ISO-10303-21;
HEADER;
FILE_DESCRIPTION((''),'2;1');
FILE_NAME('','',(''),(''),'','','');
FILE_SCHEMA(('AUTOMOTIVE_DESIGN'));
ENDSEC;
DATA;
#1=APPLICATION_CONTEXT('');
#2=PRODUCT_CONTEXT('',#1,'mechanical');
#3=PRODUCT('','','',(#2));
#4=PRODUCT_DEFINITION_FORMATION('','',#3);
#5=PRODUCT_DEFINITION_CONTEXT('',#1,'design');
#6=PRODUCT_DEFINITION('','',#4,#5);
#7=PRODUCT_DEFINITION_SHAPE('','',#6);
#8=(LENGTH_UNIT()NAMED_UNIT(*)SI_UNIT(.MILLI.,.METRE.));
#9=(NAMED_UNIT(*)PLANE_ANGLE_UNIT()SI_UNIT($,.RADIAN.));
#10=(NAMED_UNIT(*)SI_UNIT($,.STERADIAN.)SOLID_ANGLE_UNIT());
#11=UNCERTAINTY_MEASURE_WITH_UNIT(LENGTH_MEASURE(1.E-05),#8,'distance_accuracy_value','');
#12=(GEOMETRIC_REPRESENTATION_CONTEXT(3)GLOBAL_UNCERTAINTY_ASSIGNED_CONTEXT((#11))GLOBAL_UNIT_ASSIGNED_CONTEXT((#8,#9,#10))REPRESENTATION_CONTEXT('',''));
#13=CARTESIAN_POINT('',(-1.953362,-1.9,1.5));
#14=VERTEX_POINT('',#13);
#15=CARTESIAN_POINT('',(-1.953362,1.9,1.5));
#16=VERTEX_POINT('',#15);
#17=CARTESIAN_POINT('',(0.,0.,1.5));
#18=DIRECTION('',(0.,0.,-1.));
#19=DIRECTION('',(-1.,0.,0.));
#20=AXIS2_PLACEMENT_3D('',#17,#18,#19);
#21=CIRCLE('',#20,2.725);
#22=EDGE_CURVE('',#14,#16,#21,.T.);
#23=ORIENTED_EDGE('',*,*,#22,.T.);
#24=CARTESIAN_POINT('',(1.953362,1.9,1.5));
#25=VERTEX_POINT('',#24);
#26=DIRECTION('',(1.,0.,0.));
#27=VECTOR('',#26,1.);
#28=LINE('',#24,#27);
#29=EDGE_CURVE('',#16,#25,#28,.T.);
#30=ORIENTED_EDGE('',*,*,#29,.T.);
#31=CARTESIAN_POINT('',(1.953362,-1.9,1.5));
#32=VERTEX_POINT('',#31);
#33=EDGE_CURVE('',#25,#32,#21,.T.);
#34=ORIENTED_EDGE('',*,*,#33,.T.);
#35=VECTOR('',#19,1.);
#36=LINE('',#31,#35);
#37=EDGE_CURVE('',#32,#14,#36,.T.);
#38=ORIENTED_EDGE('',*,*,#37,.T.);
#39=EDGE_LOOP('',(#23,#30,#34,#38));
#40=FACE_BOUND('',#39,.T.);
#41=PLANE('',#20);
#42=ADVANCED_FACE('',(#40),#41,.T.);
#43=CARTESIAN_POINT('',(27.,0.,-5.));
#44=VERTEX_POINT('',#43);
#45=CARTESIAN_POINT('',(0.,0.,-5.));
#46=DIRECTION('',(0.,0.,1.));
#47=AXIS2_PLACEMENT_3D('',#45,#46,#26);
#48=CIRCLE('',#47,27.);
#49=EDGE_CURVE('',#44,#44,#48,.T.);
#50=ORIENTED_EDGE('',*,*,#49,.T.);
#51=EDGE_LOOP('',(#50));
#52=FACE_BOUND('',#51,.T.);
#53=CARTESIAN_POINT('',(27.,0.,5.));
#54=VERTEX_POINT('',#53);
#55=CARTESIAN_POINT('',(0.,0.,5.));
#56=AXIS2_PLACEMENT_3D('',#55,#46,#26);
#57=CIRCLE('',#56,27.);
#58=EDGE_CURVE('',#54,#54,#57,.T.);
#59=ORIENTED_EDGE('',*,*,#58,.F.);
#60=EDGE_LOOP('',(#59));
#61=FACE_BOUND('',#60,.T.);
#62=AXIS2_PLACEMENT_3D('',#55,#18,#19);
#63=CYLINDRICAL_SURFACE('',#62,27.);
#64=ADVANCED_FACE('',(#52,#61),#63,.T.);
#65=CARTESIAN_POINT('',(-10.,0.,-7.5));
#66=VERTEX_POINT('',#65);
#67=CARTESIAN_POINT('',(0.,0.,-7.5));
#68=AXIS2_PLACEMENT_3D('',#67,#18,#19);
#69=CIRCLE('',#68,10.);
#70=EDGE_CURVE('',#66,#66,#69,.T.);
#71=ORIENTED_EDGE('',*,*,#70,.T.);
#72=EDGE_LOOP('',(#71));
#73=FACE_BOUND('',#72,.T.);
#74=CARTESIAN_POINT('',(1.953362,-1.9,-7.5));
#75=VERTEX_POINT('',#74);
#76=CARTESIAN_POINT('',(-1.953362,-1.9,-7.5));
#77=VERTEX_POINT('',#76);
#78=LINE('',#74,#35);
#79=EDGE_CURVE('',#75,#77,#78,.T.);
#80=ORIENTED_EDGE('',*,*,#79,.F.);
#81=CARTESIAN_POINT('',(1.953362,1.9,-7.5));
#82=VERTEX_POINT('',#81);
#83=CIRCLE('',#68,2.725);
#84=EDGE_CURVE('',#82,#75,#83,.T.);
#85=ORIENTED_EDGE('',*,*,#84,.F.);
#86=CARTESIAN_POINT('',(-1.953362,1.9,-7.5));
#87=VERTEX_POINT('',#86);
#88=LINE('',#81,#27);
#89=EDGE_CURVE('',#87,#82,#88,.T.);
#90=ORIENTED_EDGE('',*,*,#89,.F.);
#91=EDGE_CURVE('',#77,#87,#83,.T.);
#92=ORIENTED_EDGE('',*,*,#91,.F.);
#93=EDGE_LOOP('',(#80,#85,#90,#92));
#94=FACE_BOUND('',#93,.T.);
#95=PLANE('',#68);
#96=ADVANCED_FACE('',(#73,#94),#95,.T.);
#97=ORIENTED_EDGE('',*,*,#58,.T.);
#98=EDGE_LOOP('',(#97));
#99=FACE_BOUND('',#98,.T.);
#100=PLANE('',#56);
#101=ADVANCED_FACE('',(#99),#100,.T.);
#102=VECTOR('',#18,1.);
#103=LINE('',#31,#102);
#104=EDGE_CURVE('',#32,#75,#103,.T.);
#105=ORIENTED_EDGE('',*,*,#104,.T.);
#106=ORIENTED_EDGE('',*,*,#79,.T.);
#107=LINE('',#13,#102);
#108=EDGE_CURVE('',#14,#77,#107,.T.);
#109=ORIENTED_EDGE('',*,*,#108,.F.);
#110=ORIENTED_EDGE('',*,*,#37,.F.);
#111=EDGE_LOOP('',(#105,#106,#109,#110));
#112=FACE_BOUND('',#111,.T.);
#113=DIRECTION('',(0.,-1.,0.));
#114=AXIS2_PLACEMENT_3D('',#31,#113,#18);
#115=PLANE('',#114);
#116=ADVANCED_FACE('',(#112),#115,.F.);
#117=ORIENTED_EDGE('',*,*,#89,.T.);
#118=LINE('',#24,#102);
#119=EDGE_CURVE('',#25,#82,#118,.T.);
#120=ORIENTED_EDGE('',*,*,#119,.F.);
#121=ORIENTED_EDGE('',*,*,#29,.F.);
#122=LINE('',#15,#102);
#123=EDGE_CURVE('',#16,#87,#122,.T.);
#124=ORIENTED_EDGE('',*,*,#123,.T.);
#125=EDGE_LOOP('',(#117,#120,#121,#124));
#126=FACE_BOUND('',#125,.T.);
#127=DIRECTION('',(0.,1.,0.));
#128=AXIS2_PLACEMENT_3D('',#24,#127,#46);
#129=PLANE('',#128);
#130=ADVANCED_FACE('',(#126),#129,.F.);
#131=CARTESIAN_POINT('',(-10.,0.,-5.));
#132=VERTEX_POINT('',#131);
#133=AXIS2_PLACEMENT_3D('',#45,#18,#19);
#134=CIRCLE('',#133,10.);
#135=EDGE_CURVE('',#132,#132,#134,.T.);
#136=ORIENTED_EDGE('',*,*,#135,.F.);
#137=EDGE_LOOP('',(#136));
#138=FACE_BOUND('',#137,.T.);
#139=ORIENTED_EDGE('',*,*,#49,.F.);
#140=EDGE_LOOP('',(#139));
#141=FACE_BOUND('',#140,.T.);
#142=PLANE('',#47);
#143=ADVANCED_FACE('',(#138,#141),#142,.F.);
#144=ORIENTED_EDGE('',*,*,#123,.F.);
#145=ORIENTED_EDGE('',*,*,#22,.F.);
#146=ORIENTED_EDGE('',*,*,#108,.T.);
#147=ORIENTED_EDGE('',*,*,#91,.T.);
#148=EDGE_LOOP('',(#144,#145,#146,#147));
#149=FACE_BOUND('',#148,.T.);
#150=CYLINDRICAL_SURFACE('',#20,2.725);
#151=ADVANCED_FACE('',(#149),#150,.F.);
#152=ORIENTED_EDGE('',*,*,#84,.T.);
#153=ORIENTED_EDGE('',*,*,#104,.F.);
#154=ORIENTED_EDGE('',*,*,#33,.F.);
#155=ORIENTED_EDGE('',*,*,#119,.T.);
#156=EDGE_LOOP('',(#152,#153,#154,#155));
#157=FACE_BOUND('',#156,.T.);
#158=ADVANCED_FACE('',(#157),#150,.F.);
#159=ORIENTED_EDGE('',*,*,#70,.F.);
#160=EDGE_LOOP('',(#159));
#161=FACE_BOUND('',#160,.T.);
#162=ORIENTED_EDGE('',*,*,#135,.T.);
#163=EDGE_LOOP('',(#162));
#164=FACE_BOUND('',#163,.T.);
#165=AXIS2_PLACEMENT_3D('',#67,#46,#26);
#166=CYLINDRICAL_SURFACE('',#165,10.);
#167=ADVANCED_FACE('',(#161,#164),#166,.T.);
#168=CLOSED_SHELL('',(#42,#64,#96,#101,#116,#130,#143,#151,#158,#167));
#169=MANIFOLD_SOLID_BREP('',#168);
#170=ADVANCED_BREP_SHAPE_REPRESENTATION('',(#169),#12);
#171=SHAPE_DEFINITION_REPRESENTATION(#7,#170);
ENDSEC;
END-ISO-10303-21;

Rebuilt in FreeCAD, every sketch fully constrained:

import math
import FreeCAD as App
import Part
import Sketcher

doc = App.newDocument("Part")
body = doc.addObject("PartDesign::Body", "Body")

sketch1 = body.newObject("Sketcher::SketchObject", "Sketch")
sketch1.AttachmentSupport = (doc.getObject("XY_Plane"), [""])
sketch1.MapMode = "FlatFace"
sketch1.addGeometry(Part.Circle(App.Vector(0, 0, 0), App.Vector(0, 0, 1), 27), False)
sketch1.addConstraint([
    Sketcher.Constraint("Coincident", 0, 3, -1, 1),
    Sketcher.Constraint("Diameter", 0, 54.0),
])
pad1 = body.newObject("PartDesign::Pad", "Pad")
pad1.Profile = sketch1
pad1.Length = 10
pad1.Midplane = True

sketch2 = body.newObject("Sketcher::SketchObject", "Sketch001")
sketch2.AttachmentSupport = (doc.getObject("XY_Plane"), [""])
sketch2.MapMode = "FlatFace"
sketch2.AttachmentOffset = App.Placement(App.Vector(0, 0, -5), App.Rotation())
sketch2.addGeometry(Part.Circle(App.Vector(0, 0, 0), App.Vector(0, 0, 1), 10), False)
sketch2.addConstraint([
    Sketcher.Constraint("Coincident", 0, 3, -1, 1),
    Sketcher.Constraint("Diameter", 0, 20.0),
])
pad2 = body.newObject("PartDesign::Pad", "Pad001")
pad2.Profile = sketch2
pad2.Length = 2.5
pad2.Reversed = True

sketch3 = body.newObject("Sketcher::SketchObject", "Sketch002")
sketch3.AttachmentSupport = (doc.getObject("XY_Plane"), [""])
sketch3.MapMode = "FlatFace"
sketch3.AttachmentOffset = App.Placement(App.Vector(0, 0, -7.5), App.Rotation())
sketch3.addGeometry([
    Part.LineSegment(App.Vector(2, -1.9, 0), App.Vector(-2, -1.9, 0)),
    Part.ArcOfCircle(Part.Circle(App.Vector(0, 0, 0), App.Vector(0, 0, 1), 2.7), math.radians(136), math.radians(224)),
    Part.LineSegment(App.Vector(-2, 1.9, 0), App.Vector(2, 1.9, 0)),
    Part.ArcOfCircle(Part.Circle(App.Vector(0, 0, 0), App.Vector(0, 0, 1), 2.7), math.radians(-44), math.radians(44)),
], False)
sketch3.addConstraint([
    Sketcher.Constraint("Coincident", 0, 2, 1, 2),
    Sketcher.Constraint("Coincident", 1, 1, 2, 1),
    Sketcher.Constraint("Coincident", 2, 2, 3, 2),
    Sketcher.Constraint("Coincident", 3, 1, 0, 1),
    Sketcher.Constraint("Horizontal", 0),
    Sketcher.Constraint("Horizontal", 2),
    Sketcher.Constraint("Coincident", 1, 3, -1, 1),
    Sketcher.Constraint("Coincident", 3, 3, -1, 1),
    Sketcher.Constraint("Equal", 1, 3),
    Sketcher.Constraint("Vertical", 0, 2, 1, 1),
    Sketcher.Constraint("Radius", 1, 2.725),
    Sketcher.Constraint("DistanceY", 0, 2, -1, 1, 1.9),
])
pocket1 = body.newObject("PartDesign::Pocket", "Pocket")
pocket1.Profile = sketch3
pocket1.Length = 9
pocket1.Reversed = True

doc.recompute()
